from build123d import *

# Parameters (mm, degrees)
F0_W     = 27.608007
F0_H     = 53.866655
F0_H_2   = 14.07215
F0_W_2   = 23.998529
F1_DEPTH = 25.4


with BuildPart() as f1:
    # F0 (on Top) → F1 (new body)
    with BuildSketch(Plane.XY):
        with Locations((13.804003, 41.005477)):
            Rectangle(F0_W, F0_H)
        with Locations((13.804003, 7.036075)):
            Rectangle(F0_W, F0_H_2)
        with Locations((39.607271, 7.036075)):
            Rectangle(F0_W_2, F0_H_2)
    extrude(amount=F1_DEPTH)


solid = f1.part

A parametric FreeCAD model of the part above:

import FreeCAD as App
import Part
import Sketcher
from FreeCAD import Vector
Q = App.Units.Quantity


def add_polygon(sketch, points):
    """Adds a closed chain of lines whose ends are joined by coincident constraints."""
    first, n = sketch.GeometryCount, len(points)
    for a, b in zip(points, points[1:] + points[:1]):
        sketch.addGeometry(Part.LineSegment(App.Vector(*a, 0), App.Vector(*b, 0)), False)
    for i in range(n):
        sketch.addConstraint(Sketcher.Constraint("Coincident", first + i, 2, first + (i + 1) % n, 1))

doc = App.newDocument("Part")
body = doc.addObject("PartDesign::Body", "Body")

# Sketch on XY plane
sketch1 = body.newObject("Sketcher::SketchObject", "Sketch")
sketch1.AttachmentSupport = (doc.getObject("XY_Plane"), [""])
sketch1.MapMode = "FlatFace"
add_polygon(sketch1, [(0, 0), (51.606535, 0), (51.606535, 14.07215), (27.608006, 14.07215), (27.608006, 67.938805), (0, 67.938805)])  # lines 0-5
sketch1.addConstraint([
    Sketcher.Constraint("Horizontal", 0),
    Sketcher.Constraint("Vertical", 1),
    Sketcher.Constraint("Horizontal", 2),
    Sketcher.Constraint("Vertical", 3),
    Sketcher.Constraint("Horizontal", 4),
    Sketcher.Constraint("Vertical", 5),
    Sketcher.Constraint("Coincident", 5, 2, -1, 1),
    Sketcher.Constraint("DistanceX", 2, 2, 2, 1, 23.998529),
    Sketcher.Constraint("DistanceY", 1, 1, 1, 2, 14.07215),
    Sketcher.Constraint("DistanceX", 0, 1, 0, 2, 51.606536),
    Sketcher.Constraint("DistanceY", 3, 1, 3, 2, 53.866655),
])
pad1 = body.newObject("PartDesign::Pad", "Pad")
pad1.Profile = sketch1
pad1.Length = Q("1 in")

doc.recompute()
